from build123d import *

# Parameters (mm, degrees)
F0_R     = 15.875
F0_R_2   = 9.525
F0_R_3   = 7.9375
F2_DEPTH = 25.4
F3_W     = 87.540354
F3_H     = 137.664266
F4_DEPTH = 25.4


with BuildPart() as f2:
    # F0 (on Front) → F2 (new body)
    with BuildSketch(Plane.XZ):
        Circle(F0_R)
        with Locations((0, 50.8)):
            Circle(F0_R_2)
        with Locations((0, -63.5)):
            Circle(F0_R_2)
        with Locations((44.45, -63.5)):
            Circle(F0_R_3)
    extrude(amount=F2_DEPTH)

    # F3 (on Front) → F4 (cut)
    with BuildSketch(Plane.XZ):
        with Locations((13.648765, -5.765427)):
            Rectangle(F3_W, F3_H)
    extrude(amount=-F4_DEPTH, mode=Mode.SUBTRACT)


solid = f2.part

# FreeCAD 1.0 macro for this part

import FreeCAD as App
import Part
import Sketcher
from FreeCAD import Vector
Q = App.Units.Quantity

doc = App.newDocument("Part")
params = doc.addObject("Spreadsheet::Sheet", "Params")
for row, (alias, value) in enumerate([
    ("sketch1_diameter", "1.25 in"),
    ("sketch1_diameter2", "0.75 in"),
    ("sketch1_diameter3", "0.625 in"),
    ("pad1_length", "1 in"),
    ("pocket1_length", "1 in"),
], start=1):
    params.set(f"A{row}", alias)
    params.set(f"B{row}", "=" + value)
    params.setAlias(f"B{row}", alias)

body = doc.addObject("PartDesign::Body", "Body")
body.AllowCompound = True

sketch1 = body.newObject("Sketcher::SketchObject", "Sketch")
sketch1.AttachmentSupport = (doc.getObject("XZ_Plane"), [""])
sketch1.MapMode = "FlatFace"
sketch1.addGeometry(Part.Circle(Vector(0, 0, 0), Vector(0, 0, 1), 16), False)
sketch1.addGeometry(Part.Circle(Vector(0, 51, 0), Vector(0, 0, 1), 10), False)
sketch1.addGeometry(Part.Circle(Vector(0, -64, 0), Vector(0, 0, 1), 10), False)
sketch1.addGeometry(Part.Circle(Vector(44, -64, 0), Vector(0, 0, 1), 8), False)
sketch1.addConstraint(Sketcher.Constraint("Coincident", 0, 3, -1, 1))
sketch1.addConstraint(Sketcher.Constraint("Equal", 1, 2))
sketch1.addConstraint(Sketcher.Constraint("PointOnObject", 1, 3, -2))
sketch1.addConstraint(Sketcher.Constraint("PointOnObject", 2, 3, -2))
sketch1.addConstraint(Sketcher.Constraint("Horizontal", 2, 3, 3, 3))
sketch1.addConstraint(Sketcher.Constraint("Diameter", 0, Q("1.25 in")))
sketch1.addConstraint(Sketcher.Constraint("Diameter", 1, Q("0.75 in")))
sketch1.addConstraint(Sketcher.Constraint("Diameter", 3, Q("0.625 in")))
sketch1.addConstraint(Sketcher.Constraint("DistanceY", -1, 1, 1, 3, Q("2 in")))
sketch1.addConstraint(Sketcher.Constraint("DistanceY", 2, 3, -1, 1, Q("2.5 in")))
sketch1.addConstraint(Sketcher.Constraint("DistanceX", -1, 1, 3, 3, Q("1.75 in")))
sketch1.setExpression("Constraints[5]", "Params.sketch1_diameter")
sketch1.setExpression("Constraints[6]", "Params.sketch1_diameter2")
sketch1.setExpression("Constraints[7]", "Params.sketch1_diameter3")
pad1 = body.newObject("PartDesign::Pad", "Pad")
pad1.Profile = sketch1
pad1.setExpression("Length", "Params.pad1_length")

sketch2 = body.newObject("Sketcher::SketchObject", "Sketch001")
sketch2.AttachmentSupport = (doc.getObject("XZ_Plane"), [""])
sketch2.MapMode = "FlatFace"
sketch2.addGeometry(Part.LineSegment(Vector(-30, 63, 0), Vector(-30, -75, 0)), False)
sketch2.addGeometry(Part.LineSegment(Vector(-30, -75, 0), Vector(57, -75, 0)), False)
sketch2.addGeometry(Part.LineSegment(Vector(57, -75, 0), Vector(57, 63, 0)), False)
sketch2.addGeometry(Part.LineSegment(Vector(57, 63, 0), Vector(-30, 63, 0)), False)
sketch2.addConstraint(Sketcher.Constraint("Coincident", 0, 2, 1, 1))
sketch2.addConstraint(Sketcher.Constraint("Coincident", 1, 2, 2, 1))
sketch2.addConstraint(Sketcher.Constraint("Coincident", 2, 2, 3, 1))
sketch2.addConstraint(Sketcher.Constraint("Coincident", 3, 2, 0, 1))
sketch2.addConstraint(Sketcher.Constraint("Vertical", 0))
sketch2.addConstraint(Sketcher.Constraint("Horizontal", 1))
sketch2.addConstraint(Sketcher.Constraint("Vertical", 2))
sketch2.addConstraint(Sketcher.Constraint("Horizontal", 3))
sketch2.addConstraint(Sketcher.Constraint("DistanceX", 1, 1, 1, 2, Q("87.540354 mm")))
sketch2.addConstraint(Sketcher.Constraint("DistanceY", 0, 2, 0, 1, Q("137.664266 mm")))
sketch2.addConstraint(Sketcher.Constraint("DistanceX", 0, 2, -1, 1, Q("30.121412 mm")))
sketch2.addConstraint(Sketcher.Constraint("DistanceY", 0, 2, -1, 1, Q("74.59756 mm")))
pocket1 = body.newObject("PartDesign::Pocket", "Pocket")
pocket1.Profile = sketch2
pocket1.setExpression("Length", "Params.pocket1_length")

doc.recompute()
